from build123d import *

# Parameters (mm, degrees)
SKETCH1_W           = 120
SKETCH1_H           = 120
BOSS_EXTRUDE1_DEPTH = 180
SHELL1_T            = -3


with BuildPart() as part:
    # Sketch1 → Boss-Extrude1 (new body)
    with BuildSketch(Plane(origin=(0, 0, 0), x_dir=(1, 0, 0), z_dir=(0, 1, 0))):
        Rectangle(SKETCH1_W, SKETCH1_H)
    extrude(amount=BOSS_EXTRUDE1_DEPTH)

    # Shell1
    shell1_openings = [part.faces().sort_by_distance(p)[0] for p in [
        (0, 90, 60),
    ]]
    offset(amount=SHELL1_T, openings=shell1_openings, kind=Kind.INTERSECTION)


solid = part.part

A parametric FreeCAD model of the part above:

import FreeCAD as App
import Part
import Sketcher


def faces_at(feature, points):
    """Names of the faces that lie closest to the given points."""
    faces = feature.Shape.Faces
    near = lambda p: min(range(len(faces)), key=lambda i: faces[i].distToShape(Part.Vertex(*p))[0])
    return sorted({f"Face{near(p) + 1}" for p in points})

doc = App.newDocument("Part")
params = doc.addObject("Spreadsheet::Sheet", "Params")
for row, (alias, value) in enumerate([
    ("sketch1_width", "120 mm"),
    ("pad1_length", "180 mm"),
    ("thickness_wall", "3 mm"),
], start=1):
    params.set(f"A{row}", alias)
    params.set(f"B{row}", "=" + value)
    params.setAlias(f"B{row}", alias)

body = doc.addObject("PartDesign::Body", "Body")

sketch1 = body.newObject("Sketcher::SketchObject", "Sketch")
sketch1.AttachmentSupport = (doc.getObject("XZ_Plane"), [""])
sketch1.MapMode = "FlatFace"
sketch1.addGeometry(Part.LineSegment(App.Vector(-60, -60, 0), App.Vector(-60, 60, 0)), False)
sketch1.addGeometry(Part.LineSegment(App.Vector(-60, 60, 0), App.Vector(60, 60, 0)), False)
sketch1.addGeometry(Part.LineSegment(App.Vector(60, 60, 0), App.Vector(60, -60, 0)), False)
sketch1.addGeometry(Part.LineSegment(App.Vector(60, -60, 0), App.Vector(-60, -60, 0)), False)
sketch1.addConstraint(Sketcher.Constraint("Coincident", 0, 2, 1, 1))
sketch1.addConstraint(Sketcher.Constraint("Coincident", 1, 2, 2, 1))
sketch1.addConstraint(Sketcher.Constraint("Coincident", 2, 2, 3, 1))
sketch1.addConstraint(Sketcher.Constraint("Coincident", 3, 2, 0, 1))
sketch1.addConstraint(Sketcher.Constraint("Vertical", 0))
sketch1.addConstraint(Sketcher.Constraint("Horizontal", 1))
sketch1.addConstraint(Sketcher.Constraint("Vertical", 2))
sketch1.addConstraint(Sketcher.Constraint("Horizontal", 3))
sketch1.addConstraint(Sketcher.Constraint("Symmetric", 0, 2, 2, 2, -1, 1))
sketch1.addConstraint(Sketcher.Constraint("Equal", 3, 0))
sketch1.addConstraint(Sketcher.Constraint("DistanceX", 1, 1, 1, 2, 120.0))
sketch1.setExpression("Constraints[10]", "Params.sketch1_width")
pad1 = body.newObject("PartDesign::Pad", "Pad")
pad1.Profile = sketch1
pad1.setExpression("Length", "Params.pad1_length")
pad1.Reversed = True
doc.recompute()

thickness = body.newObject("PartDesign::Thickness", "Thickness")
thickness.Base = (pad1, faces_at(pad1, [(0, 90, 60)]))
thickness.setExpression("Value", "Params.thickness_wall")
thickness.Reversed = True
thickness.Join = "Intersection"

doc.recompute()
